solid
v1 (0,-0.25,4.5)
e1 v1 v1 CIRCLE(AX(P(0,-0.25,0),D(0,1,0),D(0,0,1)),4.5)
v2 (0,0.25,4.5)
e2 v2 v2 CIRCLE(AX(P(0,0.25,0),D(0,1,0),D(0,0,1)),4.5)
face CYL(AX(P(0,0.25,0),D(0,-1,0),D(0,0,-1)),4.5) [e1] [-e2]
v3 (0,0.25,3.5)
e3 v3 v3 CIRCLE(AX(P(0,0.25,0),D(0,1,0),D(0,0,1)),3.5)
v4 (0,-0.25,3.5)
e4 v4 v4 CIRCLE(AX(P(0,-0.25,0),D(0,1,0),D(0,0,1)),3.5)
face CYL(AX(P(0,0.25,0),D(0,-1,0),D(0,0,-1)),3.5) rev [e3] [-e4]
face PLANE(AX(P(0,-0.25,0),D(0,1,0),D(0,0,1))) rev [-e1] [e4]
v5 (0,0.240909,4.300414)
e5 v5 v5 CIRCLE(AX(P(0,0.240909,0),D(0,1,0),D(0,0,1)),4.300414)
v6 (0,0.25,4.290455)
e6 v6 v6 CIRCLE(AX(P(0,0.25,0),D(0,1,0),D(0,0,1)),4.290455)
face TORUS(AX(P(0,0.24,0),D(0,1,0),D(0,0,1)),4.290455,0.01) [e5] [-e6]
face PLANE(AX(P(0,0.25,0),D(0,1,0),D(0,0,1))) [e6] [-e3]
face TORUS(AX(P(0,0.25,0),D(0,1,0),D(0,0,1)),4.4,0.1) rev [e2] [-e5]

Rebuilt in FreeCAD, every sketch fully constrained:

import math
import FreeCAD as App
import Part
import Sketcher

doc = App.newDocument("Part")
body = doc.addObject("PartDesign::Body", "Body")

# Sketch on XZ plane
sketch1 = body.newObject("Sketcher::SketchObject", "Sketch")
sketch1.AttachmentSupport = (doc.getObject("XZ_Plane"), [""])
sketch1.MapMode = "FlatFace"
sketch1.addGeometry([
    Part.Circle(App.Vector(0, 0, 0), App.Vector(0, 0, 1), 4.5),
    Part.Circle(App.Vector(0, 0, 0), App.Vector(0, 0, 1), 3.5),
], False)
sketch1.addConstraint([
    Sketcher.Constraint("Coincident", 0, 3, -1, 1),
    Sketcher.Constraint("Coincident", 1, 3, -1, 1),
    Sketcher.Constraint("Diameter", 0, 9.0),
    Sketcher.Constraint("Diameter", 1, 7.0),
])
pad1 = body.newObject("PartDesign::Pad", "Pad")
pad1.Profile = sketch1
pad1.Length = 0.5
pad1.Midplane = True

# Sketch on XY plane
sketch2 = body.newObject("Sketcher::SketchObject", "Sketch001")
sketch2.AttachmentSupport = (doc.getObject("XY_Plane"), [""])
sketch2.MapMode = "FlatFace"
sketch2.addGeometry([
    Part.LineSegment(App.Vector(-4.290455, 0.25, 0), App.Vector(-4.5, 0.25, 0)),
    Part.ArcOfCircle(Part.Circle(App.Vector(-4.4, 0.25, 0), App.Vector(0, 0, 1), 0.1), math.radians(180), math.radians(354.784092)),
    Part.ArcOfCircle(Part.Circle(App.Vector(-4.290455, 0.24, 0), App.Vector(0, 0, 1), 0.01), math.radians(90), math.radians(174.784091)),
], False)
sketch2.addConstraint([
    Sketcher.Constraint("Coincident", 0, 2, 1, 1),
    Sketcher.Constraint("Tangent", 1, 2, 2, 2),
    Sketcher.Constraint("Tangent", 2, 1, 0, 1),
    Sketcher.Constraint("Horizontal", 0),
    Sketcher.Constraint("Horizontal", 1, 3, 0, 2),
    Sketcher.Constraint("Radius", 1, 0.1),
    Sketcher.Constraint("Radius", 2, 0.01),
    Sketcher.Constraint("DistanceX", 1, 3, -1, 1, 4.4),
    Sketcher.Constraint("DistanceY", -1, 1, 1, 3, 0.25),
])
groove = body.newObject("PartDesign::Groove", "Groove")
groove.Profile = sketch2
groove.ReferenceAxis = (sketch2, ["V_Axis"])
groove.Angle = 360

doc.recompute()
